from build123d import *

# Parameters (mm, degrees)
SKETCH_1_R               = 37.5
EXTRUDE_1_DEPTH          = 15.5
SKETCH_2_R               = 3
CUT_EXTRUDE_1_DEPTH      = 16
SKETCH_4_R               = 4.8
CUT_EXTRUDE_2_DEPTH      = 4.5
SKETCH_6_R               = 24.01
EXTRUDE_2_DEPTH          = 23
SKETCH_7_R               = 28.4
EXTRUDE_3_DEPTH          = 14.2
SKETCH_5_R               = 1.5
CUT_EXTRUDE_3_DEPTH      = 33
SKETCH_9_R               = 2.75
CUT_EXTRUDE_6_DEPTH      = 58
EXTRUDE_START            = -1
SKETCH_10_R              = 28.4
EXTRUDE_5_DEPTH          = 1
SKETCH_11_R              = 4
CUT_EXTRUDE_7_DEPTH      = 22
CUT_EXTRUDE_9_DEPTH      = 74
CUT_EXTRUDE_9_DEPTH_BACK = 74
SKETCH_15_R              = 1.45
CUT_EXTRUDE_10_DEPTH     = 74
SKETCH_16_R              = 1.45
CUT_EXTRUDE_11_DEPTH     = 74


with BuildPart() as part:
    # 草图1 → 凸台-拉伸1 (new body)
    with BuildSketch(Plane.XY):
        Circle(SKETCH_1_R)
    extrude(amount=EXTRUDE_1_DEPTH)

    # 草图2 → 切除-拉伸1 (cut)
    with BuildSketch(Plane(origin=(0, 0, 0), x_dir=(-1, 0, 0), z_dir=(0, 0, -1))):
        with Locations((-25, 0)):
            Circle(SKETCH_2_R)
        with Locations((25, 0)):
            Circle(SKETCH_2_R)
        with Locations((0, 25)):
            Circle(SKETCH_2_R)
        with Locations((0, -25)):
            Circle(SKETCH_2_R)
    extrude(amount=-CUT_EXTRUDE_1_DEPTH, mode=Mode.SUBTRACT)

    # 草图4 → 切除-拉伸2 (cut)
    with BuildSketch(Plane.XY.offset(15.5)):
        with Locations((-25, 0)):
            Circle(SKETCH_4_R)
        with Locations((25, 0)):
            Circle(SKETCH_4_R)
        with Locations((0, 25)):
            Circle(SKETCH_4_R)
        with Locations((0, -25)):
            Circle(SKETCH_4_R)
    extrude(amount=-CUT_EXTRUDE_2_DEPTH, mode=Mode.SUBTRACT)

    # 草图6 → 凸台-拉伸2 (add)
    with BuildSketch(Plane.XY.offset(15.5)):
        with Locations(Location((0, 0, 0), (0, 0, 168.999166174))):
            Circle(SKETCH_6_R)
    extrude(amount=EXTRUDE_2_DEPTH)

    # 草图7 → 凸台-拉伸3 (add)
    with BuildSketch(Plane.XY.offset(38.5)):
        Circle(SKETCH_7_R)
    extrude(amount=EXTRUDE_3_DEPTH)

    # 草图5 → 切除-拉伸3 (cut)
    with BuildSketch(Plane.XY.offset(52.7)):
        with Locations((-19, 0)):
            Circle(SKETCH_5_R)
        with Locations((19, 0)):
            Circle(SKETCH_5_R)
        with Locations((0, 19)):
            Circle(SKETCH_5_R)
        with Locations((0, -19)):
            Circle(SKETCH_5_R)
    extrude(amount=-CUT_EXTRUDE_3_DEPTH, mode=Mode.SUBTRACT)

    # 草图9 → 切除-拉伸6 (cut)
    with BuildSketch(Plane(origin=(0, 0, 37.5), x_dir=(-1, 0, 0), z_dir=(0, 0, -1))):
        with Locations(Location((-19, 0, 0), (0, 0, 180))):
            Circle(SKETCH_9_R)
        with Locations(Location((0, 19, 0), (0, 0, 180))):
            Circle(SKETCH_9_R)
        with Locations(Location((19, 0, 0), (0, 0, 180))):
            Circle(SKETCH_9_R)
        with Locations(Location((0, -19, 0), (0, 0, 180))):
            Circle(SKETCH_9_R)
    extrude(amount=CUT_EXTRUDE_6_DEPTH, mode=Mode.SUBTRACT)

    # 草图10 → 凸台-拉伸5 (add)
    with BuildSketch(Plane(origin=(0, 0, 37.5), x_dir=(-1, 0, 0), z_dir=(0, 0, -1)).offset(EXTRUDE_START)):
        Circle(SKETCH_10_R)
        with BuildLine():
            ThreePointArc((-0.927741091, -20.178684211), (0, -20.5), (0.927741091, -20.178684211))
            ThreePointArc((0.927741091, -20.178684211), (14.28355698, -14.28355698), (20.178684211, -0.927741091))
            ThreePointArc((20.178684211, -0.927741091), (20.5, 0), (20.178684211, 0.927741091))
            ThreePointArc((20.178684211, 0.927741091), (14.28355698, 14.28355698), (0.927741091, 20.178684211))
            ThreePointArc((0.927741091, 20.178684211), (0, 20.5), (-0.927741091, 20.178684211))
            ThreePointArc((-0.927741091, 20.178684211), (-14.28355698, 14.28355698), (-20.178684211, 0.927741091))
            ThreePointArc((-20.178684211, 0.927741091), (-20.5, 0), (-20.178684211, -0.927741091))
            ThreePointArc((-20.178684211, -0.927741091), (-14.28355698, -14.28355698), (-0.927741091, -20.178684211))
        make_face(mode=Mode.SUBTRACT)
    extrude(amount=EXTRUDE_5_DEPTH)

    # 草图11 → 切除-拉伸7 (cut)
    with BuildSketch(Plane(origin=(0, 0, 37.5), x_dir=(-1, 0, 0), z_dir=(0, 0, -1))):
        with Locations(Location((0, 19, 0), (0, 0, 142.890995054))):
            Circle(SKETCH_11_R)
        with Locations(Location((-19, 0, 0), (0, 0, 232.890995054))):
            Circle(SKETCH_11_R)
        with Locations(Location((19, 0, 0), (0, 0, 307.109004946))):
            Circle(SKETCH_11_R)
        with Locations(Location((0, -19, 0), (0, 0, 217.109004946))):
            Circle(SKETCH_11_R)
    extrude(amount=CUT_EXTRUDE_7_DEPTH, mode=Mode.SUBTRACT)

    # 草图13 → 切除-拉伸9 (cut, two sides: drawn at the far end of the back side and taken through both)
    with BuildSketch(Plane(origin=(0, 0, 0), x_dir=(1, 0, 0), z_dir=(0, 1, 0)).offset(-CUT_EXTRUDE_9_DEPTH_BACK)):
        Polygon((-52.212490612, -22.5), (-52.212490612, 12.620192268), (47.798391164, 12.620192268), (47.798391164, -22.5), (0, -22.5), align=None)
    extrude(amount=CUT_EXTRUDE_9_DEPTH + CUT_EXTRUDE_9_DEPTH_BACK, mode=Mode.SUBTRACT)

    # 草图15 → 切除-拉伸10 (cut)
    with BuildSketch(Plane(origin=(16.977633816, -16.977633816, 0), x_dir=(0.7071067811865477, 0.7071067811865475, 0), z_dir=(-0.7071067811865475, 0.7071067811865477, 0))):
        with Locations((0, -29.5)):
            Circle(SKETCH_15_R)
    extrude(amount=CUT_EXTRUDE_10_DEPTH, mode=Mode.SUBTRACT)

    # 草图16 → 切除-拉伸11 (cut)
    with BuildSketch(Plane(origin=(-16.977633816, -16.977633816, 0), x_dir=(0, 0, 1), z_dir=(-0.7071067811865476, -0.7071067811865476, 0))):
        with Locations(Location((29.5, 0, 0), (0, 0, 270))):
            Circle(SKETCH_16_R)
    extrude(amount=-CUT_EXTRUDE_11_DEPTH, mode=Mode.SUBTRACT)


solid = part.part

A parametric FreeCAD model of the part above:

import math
import FreeCAD as App
import Part
import Sketcher
Q = App.Units.Quantity

doc = App.newDocument("Part")
params = doc.addObject("Spreadsheet::Sheet", "Params")
for row, (alias, value) in enumerate([
    ("sketch1_diameter", "75 mm"),
    ("pad1_length", "15.5 mm"),
    ("sketch2_diameter", "6 mm"),
    ("pocket1_length", "16 mm"),
    ("sketch3_diameter", "9.6 mm"),
    ("pocket2_length", "4.5 mm"),
    ("sketch4_diameter", "48.02 mm"),
    ("pad2_length", "23 mm"),
    ("sketch5_diameter", "56.8 mm"),
    ("pad3_length", "14.2 mm"),
    ("sketch6_diameter", "3 mm"),
    ("pocket3_length", "33 mm"),
    ("sketch7_diameter", "5.5 mm"),
    ("pocket4_length", "58 mm"),
    ("sketch8_diameter", "56.8 mm"),
    ("sketch8_radius", "1.5 mm"),
    ("sketch8_radius2", "20.2 mm"),
    ("pad4_length", "1 mm"),
    ("sketch9_diameter", "8 mm"),
    ("pocket5_length", "22 mm"),
    ("sketch11_diameter", "2.9 mm"),
    ("pocket7_length", "74 mm"),
    ("sketch12_diameter", "2.9 mm"),
    ("pocket8_length", "74 mm"),
], start=1):
    params.set(f"A{row}", alias)
    params.set(f"B{row}", "=" + value)
    params.setAlias(f"B{row}", alias)

body = doc.addObject("PartDesign::Body", "Body")

sketch1 = body.newObject("Sketcher::SketchObject", "Sketch")
sketch1.AttachmentSupport = (doc.getObject("XY_Plane"), [""])
sketch1.MapMode = "FlatFace"
sketch1.addGeometry(Part.Circle(App.Vector(0, 0, 0), App.Vector(0, 0, 1), 38), False)
sketch1.addConstraint([
    Sketcher.Constraint("Coincident", 0, 3, -1, 1),
    Sketcher.Constraint("Diameter", 0, Q("75 mm")),
])
sketch1.setExpression("Constraints[1]", "Params.sketch1_diameter")
pad1 = body.newObject("PartDesign::Pad", "Pad")
pad1.Profile = sketch1
pad1.setExpression("Length", "Params.pad1_length")

sketch2 = body.newObject("Sketcher::SketchObject", "Sketch001")
sketch2.AttachmentSupport = (doc.getObject("XY_Plane"), [""])
sketch2.MapMode = "FlatFace"
sketch2.addGeometry([
    Part.Circle(App.Vector(25, 0, 0), App.Vector(0, 0, 1), 3),
    Part.Circle(App.Vector(-25, 0, 0), App.Vector(0, 0, 1), 3),
    Part.Circle(App.Vector(0, 25, 0), App.Vector(0, 0, 1), 3),
    Part.Circle(App.Vector(0, -25, 0), App.Vector(0, 0, 1), 3),
], False)
sketch2.addConstraint([
    Sketcher.Constraint("Equal", 0, 1),
    Sketcher.Constraint("Equal", 1, 2),
    Sketcher.Constraint("Equal", 2, 3),
    Sketcher.Constraint("Symmetric", 0, 3, 1, 3, -1, 1),
    Sketcher.Constraint("Symmetric", 2, 3, 3, 3, -1, 1),
    Sketcher.Constraint("PointOnObject", 0, 3, -1),
    Sketcher.Constraint("PointOnObject", 2, 3, -2),
    Sketcher.Constraint("Diameter", 0, Q("6 mm")),
    Sketcher.Constraint("DistanceX", -1, 1, 0, 3, Q("25 mm")),
    Sketcher.Constraint("DistanceY", -1, 1, 2, 3, Q("25 mm")),
])
sketch2.setExpression("Constraints[7]", "Params.sketch2_diameter")
pocket1 = body.newObject("PartDesign::Pocket", "Pocket")
pocket1.Profile = sketch2
pocket1.setExpression("Length", "Params.pocket1_length")
pocket1.Reversed = True

sketch3 = body.newObject("Sketcher::SketchObject", "Sketch002")
sketch3.AttachmentSupport = (doc.getObject("XY_Plane"), [""])
sketch3.MapMode = "FlatFace"
sketch3.AttachmentOffset = App.Placement(App.Vector(0, 0, 15.5), App.Rotation())
sketch3.addGeometry([
    Part.Circle(App.Vector(-25, 0, 0), App.Vector(0, 0, 1), 4.8),
    Part.Circle(App.Vector(25, 0, 0), App.Vector(0, 0, 1), 4.8),
    Part.Circle(App.Vector(0, 25, 0), App.Vector(0, 0, 1), 4.8),
    Part.Circle(App.Vector(0, -25, 0), App.Vector(0, 0, 1), 4.8),
], False)
sketch3.addConstraint([
    Sketcher.Constraint("Equal", 0, 1),
    Sketcher.Constraint("Equal", 1, 2),
    Sketcher.Constraint("Equal", 2, 3),
    Sketcher.Constraint("Symmetric", 0, 3, 1, 3, -1, 1),
    Sketcher.Constraint("Symmetric", 2, 3, 3, 3, -1, 1),
    Sketcher.Constraint("PointOnObject", 0, 3, -1),
    Sketcher.Constraint("PointOnObject", 2, 3, -2),
    Sketcher.Constraint("Diameter", 0, Q("9.6 mm")),
    Sketcher.Constraint("DistanceX", 0, 3, -1, 1, Q("25 mm")),
    Sketcher.Constraint("DistanceY", -1, 1, 2, 3, Q("25 mm")),
])
sketch3.setExpression("Constraints[7]", "Params.sketch3_diameter")
pocket2 = body.newObject("PartDesign::Pocket", "Pocket001")
pocket2.Profile = sketch3
pocket2.setExpression("Length", "Params.pocket2_length")

sketch4 = body.newObject("Sketcher::SketchObject", "Sketch003")
sketch4.AttachmentSupport = (doc.getObject("XY_Plane"), [""])
sketch4.MapMode = "FlatFace"
sketch4.AttachmentOffset = App.Placement(App.Vector(0, 0, 15.5), App.Rotation())
sketch4.addGeometry(Part.Circle(App.Vector(0, 0, 0), App.Vector(0, 0, 1), 24), False)
sketch4.addConstraint([
    Sketcher.Constraint("Coincident", 0, 3, -1, 1),
    Sketcher.Constraint("Diameter", 0, Q("48.02 mm")),
])
sketch4.setExpression("Constraints[1]", "Params.sketch4_diameter")
pad2 = body.newObject("PartDesign::Pad", "Pad001")
pad2.Profile = sketch4
pad2.setExpression("Length", "Params.pad2_length")

sketch5 = body.newObject("Sketcher::SketchObject", "Sketch004")
sketch5.AttachmentSupport = (doc.getObject("XY_Plane"), [""])
sketch5.MapMode = "FlatFace"
sketch5.AttachmentOffset = App.Placement(App.Vector(0, 0, 38.5), App.Rotation())
sketch5.addGeometry(Part.Circle(App.Vector(0, 0, 0), App.Vector(0, 0, 1), 28), False)
sketch5.addConstraint([
    Sketcher.Constraint("Coincident", 0, 3, -1, 1),
    Sketcher.Constraint("Diameter", 0, Q("56.8 mm")),
])
sketch5.setExpression("Constraints[1]", "Params.sketch5_diameter")
pad3 = body.newObject("PartDesign::Pad", "Pad002")
pad3.Profile = sketch5
pad3.setExpression("Length", "Params.pad3_length")

sketch6 = body.newObject("Sketcher::SketchObject", "Sketch005")
sketch6.AttachmentSupport = (doc.getObject("XY_Plane"), [""])
sketch6.MapMode = "FlatFace"
sketch6.AttachmentOffset = App.Placement(App.Vector(0, 0, 52.7), App.Rotation())
sketch6.addGeometry([
    Part.Circle(App.Vector(-19, 0, 0), App.Vector(0, 0, 1), 1.5),
    Part.Circle(App.Vector(19, 0, 0), App.Vector(0, 0, 1), 1.5),
    Part.Circle(App.Vector(0, 19, 0), App.Vector(0, 0, 1), 1.5),
    Part.Circle(App.Vector(0, -19, 0), App.Vector(0, 0, 1), 1.5),
], False)
sketch6.addConstraint([
    Sketcher.Constraint("Equal", 0, 1),
    Sketcher.Constraint("Equal", 1, 2),
    Sketcher.Constraint("Equal", 2, 3),
    Sketcher.Constraint("Symmetric", 0, 3, 1, 3, -1, 1),
    Sketcher.Constraint("Symmetric", 2, 3, 3, 3, -1, 1),
    Sketcher.Constraint("PointOnObject", 0, 3, -1),
    Sketcher.Constraint("PointOnObject", 2, 3, -2),
    Sketcher.Constraint("Diameter", 0, Q("3 mm")),
    Sketcher.Constraint("DistanceX", 0, 3, -1, 1, Q("19 mm")),
    Sketcher.Constraint("DistanceY", -1, 1, 2, 3, Q("19 mm")),
])
sketch6.setExpression("Constraints[7]", "Params.sketch6_diameter")
pocket3 = body.newObject("PartDesign::Pocket", "Pocket002")
pocket3.Profile = sketch6
pocket3.setExpression("Length", "Params.pocket3_length")

sketch7 = body.newObject("Sketcher::SketchObject", "Sketch006")
sketch7.AttachmentSupport = (doc.getObject("XY_Plane"), [""])
sketch7.MapMode = "FlatFace"
sketch7.AttachmentOffset = App.Placement(App.Vector(0, 0, 37.5), App.Rotation())
sketch7.addGeometry([
    Part.Circle(App.Vector(19, 0, 0), App.Vector(0, 0, 1), 2.8),
    Part.Circle(App.Vector(0, 19, 0), App.Vector(0, 0, 1), 2.8),
    Part.Circle(App.Vector(-19, 0, 0), App.Vector(0, 0, 1), 2.8),
    Part.Circle(App.Vector(0, -19, 0), App.Vector(0, 0, 1), 2.8),
], False)
sketch7.addConstraint([
    Sketcher.Constraint("Equal", 0, 1),
    Sketcher.Constraint("Equal", 1, 2),
    Sketcher.Constraint("Equal", 2, 3),
    Sketcher.Constraint("Symmetric", 0, 3, 2, 3, -1, 1),
    Sketcher.Constraint("Symmetric", 1, 3, 3, 3, -1, 1),
    Sketcher.Constraint("PointOnObject", 0, 3, -1),
    Sketcher.Constraint("PointOnObject", 1, 3, -2),
    Sketcher.Constraint("Diameter", 0, Q("5.5 mm")),
    Sketcher.Constraint("DistanceX", -1, 1, 0, 3, Q("19 mm")),
    Sketcher.Constraint("DistanceY", -1, 1, 1, 3, Q("19 mm")),
])
sketch7.setExpression("Constraints[7]", "Params.sketch7_diameter")
pocket4 = body.newObject("PartDesign::Pocket", "Pocket003")
pocket4.Profile = sketch7
pocket4.setExpression("Length", "Params.pocket4_length")

sketch8 = body.newObject("Sketcher::SketchObject", "Sketch007")
sketch8.AttachmentSupport = (doc.getObject("XY_Plane"), [""])
sketch8.MapMode = "FlatFace"
sketch8.AttachmentOffset = App.Placement(App.Vector(0, 0, 38.5), App.Rotation())
sketch8.addGeometry([
    Part.Circle(App.Vector(0, 0, 0), App.Vector(0, 0, 1), 28.4),
    Part.ArcOfCircle(Part.Circle(App.Vector(0, -19, 0), App.Vector(0, 0, 1), 1.5), math.radians(-128), math.radians(-52)),
    Part.ArcOfCircle(Part.Circle(App.Vector(0, 0, 0), App.Vector(0, 0, 1), 20.2), math.radians(-87), math.radians(-3)),
    Part.ArcOfCircle(Part.Circle(App.Vector(19, 0, 0), App.Vector(0, 0, 1), 1.5), math.radians(-38), math.radians(38)),
    Part.ArcOfCircle(Part.Circle(App.Vector(0, 0, 0), App.Vector(0, 0, 1), 20.2), math.radians(3), math.radians(87)),
    Part.ArcOfCircle(Part.Circle(App.Vector(0, 19, 0), App.Vector(0, 0, 1), 1.5), math.radians(52), math.radians(128)),
    Part.ArcOfCircle(Part.Circle(App.Vector(0, 0, 0), App.Vector(0, 0, 1), 20.2), math.radians(93), math.radians(177)),
    Part.ArcOfCircle(Part.Circle(App.Vector(-19, 0, 0), App.Vector(0, 0, 1), 1.5), math.radians(142), math.radians(218)),
    Part.ArcOfCircle(Part.Circle(App.Vector(0, 0, 0), App.Vector(0, 0, 1), 20.2), math.radians(-177), math.radians(-93)),
], False)
sketch8.addConstraint([
    Sketcher.Constraint("Coincident", 1, 2, 2, 1),
    Sketcher.Constraint("Coincident", 2, 2, 3, 1),
    Sketcher.Constraint("Coincident", 3, 2, 4, 1),
    Sketcher.Constraint("Coincident", 4, 2, 5, 1),
    Sketcher.Constraint("Coincident", 5, 2, 6, 1),
    Sketcher.Constraint("Coincident", 6, 2, 7, 1),
    Sketcher.Constraint("Coincident", 7, 2, 8, 1),
    Sketcher.Constraint("Coincident", 8, 2, 1, 1),
    Sketcher.Constraint("Coincident", 0, 3, -1, 1),
    Sketcher.Constraint("Coincident", 2, 3, -1, 1),
    Sketcher.Constraint("Coincident", 4, 3, -1, 1),
    Sketcher.Constraint("Coincident", 6, 3, -1, 1),
    Sketcher.Constraint("Coincident", 8, 3, -1, 1),
    Sketcher.Constraint("Equal", 1, 3),
    Sketcher.Constraint("Equal", 2, 4),
    Sketcher.Constraint("Equal", 3, 5),
    Sketcher.Constraint("Equal", 4, 6),
    Sketcher.Constraint("Equal", 5, 7),
    Sketcher.Constraint("Equal", 6, 8),
    Sketcher.Constraint("Symmetric", 1, 3, 5, 3, -1, 1),
    Sketcher.Constraint("Symmetric", 3, 3, 7, 3, -1, 1),
    Sketcher.Constraint("PointOnObject", 1, 3, -2),
    Sketcher.Constraint("PointOnObject", 3, 3, -1),
    Sketcher.Constraint("Diameter", 0, Q("56.8 mm")),
    Sketcher.Constraint("Radius", 1, Q("1.5 mm")),
    Sketcher.Constraint("Radius", 2, Q("20.2 mm")),
    Sketcher.Constraint("DistanceY", 1, 3, -1, 1, Q("19 mm")),
    Sketcher.Constraint("DistanceX", -1, 1, 3, 3, Q("19 mm")),
])
sketch8.setExpression("Constraints[23]", "Params.sketch8_diameter")
sketch8.setExpression("Constraints[24]", "Params.sketch8_radius")
sketch8.setExpression("Constraints[25]", "Params.sketch8_radius2")
pad4 = body.newObject("PartDesign::Pad", "Pad003")
pad4.Profile = sketch8
pad4.setExpression("Length", "Params.pad4_length")
pad4.Reversed = True

sketch9 = body.newObject("Sketcher::SketchObject", "Sketch008")
sketch9.AttachmentSupport = (doc.getObject("XY_Plane"), [""])
sketch9.MapMode = "FlatFace"
sketch9.AttachmentOffset = App.Placement(App.Vector(0, 0, 37.5), App.Rotation())
sketch9.addGeometry([
    Part.Circle(App.Vector(0, 19, 0), App.Vector(0, 0, 1), 4),
    Part.Circle(App.Vector(19, 0, 0), App.Vector(0, 0, 1), 4),
    Part.Circle(App.Vector(-19, 0, 0), App.Vector(0, 0, 1), 4),
    Part.Circle(App.Vector(0, -19, 0), App.Vector(0, 0, 1), 4),
], False)
sketch9.addConstraint([
    Sketcher.Constraint("Equal", 0, 1),
    Sketcher.Constraint("Equal", 1, 2),
    Sketcher.Constraint("Equal", 2, 3),
    Sketcher.Constraint("Symmetric", 1, 3, 2, 3, -1, 1),
    Sketcher.Constraint("Symmetric", 0, 3, 3, 3, -1, 1),
    Sketcher.Constraint("PointOnObject", 0, 3, -2),
    Sketcher.Constraint("PointOnObject", 1, 3, -1),
    Sketcher.Constraint("Diameter", 0, Q("8 mm")),
    Sketcher.Constraint("DistanceY", -1, 1, 0, 3, Q("19 mm")),
    Sketcher.Constraint("DistanceX", -1, 1, 1, 3, Q("19 mm")),
])
sketch9.setExpression("Constraints[7]", "Params.sketch9_diameter")
pocket5 = body.newObject("PartDesign::Pocket", "Pocket004")
pocket5.Profile = sketch9
pocket5.setExpression("Length", "Params.pocket5_length")

sketch10 = body.newObject("Sketcher::SketchObject", "Sketch009")
sketch10.AttachmentSupport = (doc.getObject("XZ_Plane"), [""])
sketch10.MapMode = "FlatFace"
sketch10.addGeometry([
    Part.LineSegment(App.Vector(-52, -13, 0), App.Vector(-52, 22, 0)),
    Part.LineSegment(App.Vector(-52, 22, 0), App.Vector(48, 22, 0)),
    Part.LineSegment(App.Vector(48, 22, 0), App.Vector(48, -13, 0)),
    Part.LineSegment(App.Vector(48, -13, 0), App.Vector(-52, -13, 0)),
], False)
sketch10.addConstraint([
    Sketcher.Constraint("Coincident", 0, 2, 1, 1),
    Sketcher.Constraint("Coincident", 1, 2, 2, 1),
    Sketcher.Constraint("Coincident", 2, 2, 3, 1),
    Sketcher.Constraint("Coincident", 3, 2, 0, 1),
    Sketcher.Constraint("Vertical", 0),
    Sketcher.Constraint("Horizontal", 1),
    Sketcher.Constraint("Vertical", 2),
    Sketcher.Constraint("Horizontal", 3),
    Sketcher.Constraint("DistanceY", -1, 1, 0, 2, Q("22.5 mm")),
    Sketcher.Constraint("DistanceX", 1, 1, 1, 2, Q("100.010882 mm")),
    Sketcher.Constraint("DistanceY", 0, 1, 0, 2, Q("35.120192 mm")),
    Sketcher.Constraint("DistanceX", 0, 2, -1, 1, Q("52.212491 mm")),
])
pocket6 = body.newObject("PartDesign::Pocket", "Pocket005")
pocket6.Profile = sketch10
pocket6.Type = "ThroughAll"
pocket6.Midplane = True

sketch11 = body.newObject("Sketcher::SketchObject", "Sketch010")
sketch11.Placement = App.Placement(App.Vector(16.977634, -16.977634, 0), App.Rotation(App.Vector(0.707106781, 0.707106781, 0), App.Vector(0, 0, -0.999999999), App.Vector(-0.707106781, 0.707106781, 0), "ZXY"))
sketch11.addGeometry(Part.Circle(App.Vector(0, -29.5, 0), App.Vector(0, 0, 1), 1.4), False)
sketch11.addConstraint([
    Sketcher.Constraint("PointOnObject", 0, 3, -2),
    Sketcher.Constraint("Diameter", 0, Q("2.9 mm")),
    Sketcher.Constraint("DistanceY", 0, 3, -1, 1, Q("29.5 mm")),
])
sketch11.setExpression("Constraints[1]", "Params.sketch11_diameter")
pocket7 = body.newObject("PartDesign::Pocket", "Pocket006")
pocket7.Profile = sketch11
pocket7.setExpression("Length", "Params.pocket7_length")
pocket7.Reversed = True

sketch12 = body.newObject("Sketcher::SketchObject", "Sketch011")
sketch12.Placement = App.Placement(App.Vector(-16.977634, -16.977634, 0), App.Rotation(App.Vector(0, 0, 1), App.Vector(-0.707106781, 0.707106781, 0), App.Vector(-0.707106781, -0.707106781, 0), "ZXY"))
sketch12.addGeometry(Part.Circle(App.Vector(29.5, 0, 0), App.Vector(0, 0, 1), 1.4), False)
sketch12.addConstraint([
    Sketcher.Constraint("PointOnObject", 0, 3, -1),
    Sketcher.Constraint("Diameter", 0, Q("2.9 mm")),
    Sketcher.Constraint("DistanceX", -1, 1, 0, 3, Q("29.5 mm")),
])
sketch12.setExpression("Constraints[1]", "Params.sketch12_diameter")
pocket8 = body.newObject("PartDesign::Pocket", "Pocket007")
pocket8.Profile = sketch12
pocket8.setExpression("Length", "Params.pocket8_length")

doc.recompute()
